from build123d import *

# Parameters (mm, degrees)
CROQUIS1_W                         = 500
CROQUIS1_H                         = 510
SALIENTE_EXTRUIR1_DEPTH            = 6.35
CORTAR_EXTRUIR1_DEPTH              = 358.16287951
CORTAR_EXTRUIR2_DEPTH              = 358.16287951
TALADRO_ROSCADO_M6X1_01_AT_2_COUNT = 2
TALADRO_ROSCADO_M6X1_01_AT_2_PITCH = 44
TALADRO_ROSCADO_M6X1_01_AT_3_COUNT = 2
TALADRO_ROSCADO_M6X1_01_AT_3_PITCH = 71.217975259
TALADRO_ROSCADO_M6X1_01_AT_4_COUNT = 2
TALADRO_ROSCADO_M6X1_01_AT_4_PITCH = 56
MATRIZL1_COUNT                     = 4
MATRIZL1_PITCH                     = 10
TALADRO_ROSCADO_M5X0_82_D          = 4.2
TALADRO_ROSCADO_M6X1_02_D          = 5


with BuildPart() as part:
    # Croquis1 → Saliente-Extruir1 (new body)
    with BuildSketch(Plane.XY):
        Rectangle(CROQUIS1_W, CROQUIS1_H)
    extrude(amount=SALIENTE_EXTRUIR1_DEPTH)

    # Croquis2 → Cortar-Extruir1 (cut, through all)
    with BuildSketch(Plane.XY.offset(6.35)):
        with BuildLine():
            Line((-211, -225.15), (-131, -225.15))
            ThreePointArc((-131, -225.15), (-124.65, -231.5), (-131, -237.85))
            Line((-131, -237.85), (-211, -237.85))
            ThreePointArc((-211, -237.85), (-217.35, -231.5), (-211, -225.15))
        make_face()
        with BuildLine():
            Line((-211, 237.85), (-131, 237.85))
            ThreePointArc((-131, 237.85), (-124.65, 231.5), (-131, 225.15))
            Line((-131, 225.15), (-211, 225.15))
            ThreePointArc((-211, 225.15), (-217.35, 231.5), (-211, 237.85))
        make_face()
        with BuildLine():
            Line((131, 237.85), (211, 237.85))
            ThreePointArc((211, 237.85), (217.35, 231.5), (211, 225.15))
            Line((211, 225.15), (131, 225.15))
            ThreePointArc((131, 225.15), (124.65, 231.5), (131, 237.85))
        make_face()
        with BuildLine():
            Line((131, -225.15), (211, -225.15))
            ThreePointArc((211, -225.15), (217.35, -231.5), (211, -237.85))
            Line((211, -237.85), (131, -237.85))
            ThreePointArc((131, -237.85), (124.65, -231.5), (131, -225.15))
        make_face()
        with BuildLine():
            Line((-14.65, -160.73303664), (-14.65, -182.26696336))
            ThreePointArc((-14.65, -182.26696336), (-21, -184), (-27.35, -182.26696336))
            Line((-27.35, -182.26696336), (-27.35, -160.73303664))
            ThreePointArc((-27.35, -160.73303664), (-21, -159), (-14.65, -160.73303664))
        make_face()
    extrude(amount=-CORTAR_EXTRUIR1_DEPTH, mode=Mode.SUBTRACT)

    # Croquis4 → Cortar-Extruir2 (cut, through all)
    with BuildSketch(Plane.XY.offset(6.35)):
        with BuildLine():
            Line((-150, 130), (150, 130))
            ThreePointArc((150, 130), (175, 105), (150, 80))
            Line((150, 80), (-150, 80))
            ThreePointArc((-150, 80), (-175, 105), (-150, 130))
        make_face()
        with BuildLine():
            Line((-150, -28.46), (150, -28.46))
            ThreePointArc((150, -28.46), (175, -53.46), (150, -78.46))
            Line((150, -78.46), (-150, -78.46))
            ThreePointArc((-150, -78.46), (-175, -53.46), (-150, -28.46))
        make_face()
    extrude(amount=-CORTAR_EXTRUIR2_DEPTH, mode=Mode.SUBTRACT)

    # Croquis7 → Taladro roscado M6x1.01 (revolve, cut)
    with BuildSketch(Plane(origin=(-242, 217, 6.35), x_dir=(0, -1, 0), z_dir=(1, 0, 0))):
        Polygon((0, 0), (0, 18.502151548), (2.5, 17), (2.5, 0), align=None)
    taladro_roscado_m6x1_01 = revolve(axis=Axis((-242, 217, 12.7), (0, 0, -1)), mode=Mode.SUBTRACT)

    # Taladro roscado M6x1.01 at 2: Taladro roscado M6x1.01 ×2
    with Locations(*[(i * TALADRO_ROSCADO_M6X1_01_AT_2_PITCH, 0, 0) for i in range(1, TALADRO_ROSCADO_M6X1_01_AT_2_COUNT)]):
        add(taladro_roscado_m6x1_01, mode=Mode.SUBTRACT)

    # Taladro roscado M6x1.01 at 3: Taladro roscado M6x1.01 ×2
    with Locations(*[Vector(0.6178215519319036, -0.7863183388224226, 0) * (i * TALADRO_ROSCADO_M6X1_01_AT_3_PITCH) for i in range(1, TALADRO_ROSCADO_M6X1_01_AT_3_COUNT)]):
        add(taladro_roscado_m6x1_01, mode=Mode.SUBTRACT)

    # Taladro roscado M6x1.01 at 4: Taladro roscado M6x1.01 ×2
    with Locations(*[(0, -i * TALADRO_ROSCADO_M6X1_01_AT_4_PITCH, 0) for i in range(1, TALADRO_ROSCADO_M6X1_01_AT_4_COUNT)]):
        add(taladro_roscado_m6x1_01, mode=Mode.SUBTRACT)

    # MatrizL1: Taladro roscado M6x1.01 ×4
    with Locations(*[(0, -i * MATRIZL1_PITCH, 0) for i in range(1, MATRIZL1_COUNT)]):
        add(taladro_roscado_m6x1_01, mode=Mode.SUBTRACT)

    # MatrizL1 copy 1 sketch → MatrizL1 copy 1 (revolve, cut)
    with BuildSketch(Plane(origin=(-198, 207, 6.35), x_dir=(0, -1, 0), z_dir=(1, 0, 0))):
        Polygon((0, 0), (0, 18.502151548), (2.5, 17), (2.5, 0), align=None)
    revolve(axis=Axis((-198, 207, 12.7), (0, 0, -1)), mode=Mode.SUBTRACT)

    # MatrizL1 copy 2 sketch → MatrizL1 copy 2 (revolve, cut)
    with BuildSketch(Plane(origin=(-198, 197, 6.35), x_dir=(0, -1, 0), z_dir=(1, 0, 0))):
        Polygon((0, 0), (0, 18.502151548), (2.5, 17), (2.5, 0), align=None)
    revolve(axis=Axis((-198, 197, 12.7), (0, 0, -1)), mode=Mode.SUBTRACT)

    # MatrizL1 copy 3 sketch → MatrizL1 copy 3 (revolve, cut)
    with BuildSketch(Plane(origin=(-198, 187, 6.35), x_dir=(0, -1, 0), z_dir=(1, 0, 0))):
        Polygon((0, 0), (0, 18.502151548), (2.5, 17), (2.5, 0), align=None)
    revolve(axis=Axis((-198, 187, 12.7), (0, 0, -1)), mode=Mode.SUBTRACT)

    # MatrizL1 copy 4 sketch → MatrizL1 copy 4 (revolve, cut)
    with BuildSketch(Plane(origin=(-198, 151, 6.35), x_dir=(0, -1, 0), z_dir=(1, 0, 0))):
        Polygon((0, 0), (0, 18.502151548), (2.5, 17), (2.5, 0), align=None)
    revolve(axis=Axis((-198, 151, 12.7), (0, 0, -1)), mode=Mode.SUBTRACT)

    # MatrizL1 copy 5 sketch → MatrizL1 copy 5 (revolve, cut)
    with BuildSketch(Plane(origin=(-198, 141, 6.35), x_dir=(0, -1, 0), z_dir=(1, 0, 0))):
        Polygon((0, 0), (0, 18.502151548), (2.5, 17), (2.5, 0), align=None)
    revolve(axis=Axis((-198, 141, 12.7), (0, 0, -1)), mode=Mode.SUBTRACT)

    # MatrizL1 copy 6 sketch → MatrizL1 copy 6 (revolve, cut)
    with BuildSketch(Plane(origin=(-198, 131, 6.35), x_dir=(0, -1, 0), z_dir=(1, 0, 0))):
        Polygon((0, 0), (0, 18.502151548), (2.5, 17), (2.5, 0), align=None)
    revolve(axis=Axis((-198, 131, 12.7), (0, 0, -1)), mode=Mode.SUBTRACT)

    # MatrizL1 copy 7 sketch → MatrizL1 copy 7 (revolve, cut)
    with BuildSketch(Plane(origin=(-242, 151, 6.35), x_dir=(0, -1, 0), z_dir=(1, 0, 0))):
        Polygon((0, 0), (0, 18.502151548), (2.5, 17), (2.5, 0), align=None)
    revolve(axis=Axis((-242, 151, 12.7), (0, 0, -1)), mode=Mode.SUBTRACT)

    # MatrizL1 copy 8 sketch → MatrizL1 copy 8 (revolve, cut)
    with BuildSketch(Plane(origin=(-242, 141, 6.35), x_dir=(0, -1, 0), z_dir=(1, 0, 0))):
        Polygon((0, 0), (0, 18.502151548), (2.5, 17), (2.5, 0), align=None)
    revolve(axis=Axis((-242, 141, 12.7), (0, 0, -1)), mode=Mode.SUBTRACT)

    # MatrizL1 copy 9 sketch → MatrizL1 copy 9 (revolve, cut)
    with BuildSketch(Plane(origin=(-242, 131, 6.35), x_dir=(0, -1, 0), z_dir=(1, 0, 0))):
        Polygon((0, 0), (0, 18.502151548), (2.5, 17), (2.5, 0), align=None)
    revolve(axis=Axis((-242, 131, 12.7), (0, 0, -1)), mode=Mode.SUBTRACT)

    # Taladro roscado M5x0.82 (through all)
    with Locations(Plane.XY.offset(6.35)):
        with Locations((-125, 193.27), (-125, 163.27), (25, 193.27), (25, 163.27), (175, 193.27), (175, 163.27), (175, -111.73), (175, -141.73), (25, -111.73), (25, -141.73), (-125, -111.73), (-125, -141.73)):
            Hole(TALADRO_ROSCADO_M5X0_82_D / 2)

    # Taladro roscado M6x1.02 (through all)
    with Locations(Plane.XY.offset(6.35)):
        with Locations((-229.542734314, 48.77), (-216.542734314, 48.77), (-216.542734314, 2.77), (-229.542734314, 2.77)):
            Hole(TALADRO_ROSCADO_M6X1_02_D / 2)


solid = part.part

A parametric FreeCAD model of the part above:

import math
import FreeCAD as App
import Part
import Sketcher
Q = App.Units.Quantity


def add_polygon(sketch, points):
    """Adds a closed chain of lines whose ends are joined by coincident constraints."""
    first, n = sketch.GeometryCount, len(points)
    for a, b in zip(points, points[1:] + points[:1]):
        sketch.addGeometry(Part.LineSegment(App.Vector(*a, 0), App.Vector(*b, 0)), False)
    for i in range(n):
        sketch.addConstraint(Sketcher.Constraint("Coincident", first + i, 2, first + (i + 1) % n, 1))

doc = App.newDocument("Part")
body = doc.addObject("PartDesign::Body", "Body")

# Sketch on XY plane
sketch1 = doc.addObject("Sketcher::SketchObject", "Sketch")
body.addObject(sketch1)
sketch1.AttachmentSupport = (doc.XY_Plane, [""])
sketch1.MapMode = "FlatFace"
add_polygon(sketch1, [(-250, 255), (-250, -255), (250, -255), (250, 255)])  # lines 0-3
sketch1.addConstraint([
    Sketcher.Constraint("Vertical", 0),
    Sketcher.Constraint("Horizontal", 1),
    Sketcher.Constraint("Vertical", 2),
    Sketcher.Constraint("Horizontal", 3),
    Sketcher.Constraint("Symmetric", 0, 2, 2, 2, -1, 1),
    Sketcher.Constraint("DistanceX", 1, 1, 1, 2, Q("500 mm")),
    Sketcher.Constraint("DistanceY", 0, 2, 0, 1, Q("510 mm")),
])
pad1 = doc.addObject("PartDesign::Pad", "Pad")
body.addObject(pad1)
pad1.Profile = sketch1
pad1.Length = 6.35

# Sketch on XY plane
sketch2 = doc.addObject("Sketcher::SketchObject", "Sketch001")
body.addObject(sketch2)
sketch2.AttachmentSupport = (doc.XY_Plane, [""])
sketch2.MapMode = "FlatFace"
sketch2.AttachmentOffset = App.Placement(App.Vector(0, 0, 6.35), App.Rotation())
sketch2.addGeometry([
    Part.LineSegment(App.Vector(-131, -225.15, 0), App.Vector(-211, -225.15, 0)),  # 0
    Part.ArcOfCircle(Part.Circle(App.Vector(-211, -231.5, 0), App.Vector(0, 0, 1), 6.35), math.radians(90), math.radians(270)),  # 1
    Part.LineSegment(App.Vector(-211, -237.85, 0), App.Vector(-131, -237.85, 0)),  # 2
    Part.ArcOfCircle(Part.Circle(App.Vector(-131, -231.5, 0), App.Vector(0, 0, 1), 6.35), math.radians(-90), math.radians(90)),  # 3
    Part.LineSegment(App.Vector(-131, 237.85, 0), App.Vector(-211, 237.85, 0)),  # 4
    Part.ArcOfCircle(Part.Circle(App.Vector(-211, 231.5, 0), App.Vector(0, 0, 1), 6.35), math.radians(90), math.radians(270)),  # 5
    Part.LineSegment(App.Vector(-211, 225.15, 0), App.Vector(-131, 225.15, 0)),  # 6
    Part.ArcOfCircle(Part.Circle(App.Vector(-131, 231.5, 0), App.Vector(0, 0, 1), 6.35), math.radians(-90), math.radians(90)),  # 7
    Part.LineSegment(App.Vector(211, 237.85, 0), App.Vector(131, 237.85, 0)),  # 8
    Part.ArcOfCircle(Part.Circle(App.Vector(131, 231.5, 0), App.Vector(0, 0, 1), 6.35), math.radians(90), math.radians(270)),  # 9
    Part.LineSegment(App.Vector(131, 225.15, 0), App.Vector(211, 225.15, 0)),  # 10
    Part.ArcOfCircle(Part.Circle(App.Vector(211, 231.5, 0), App.Vector(0, 0, 1), 6.35), math.radians(-90), math.radians(90)),  # 11
    Part.LineSegment(App.Vector(211, -225.15, 0), App.Vector(131, -225.15, 0)),  # 12
    Part.ArcOfCircle(Part.Circle(App.Vector(131, -231.5, 0), App.Vector(0, 0, 1), 6.35), math.radians(90), math.radians(270)),  # 13
    Part.LineSegment(App.Vector(131, -237.85, 0), App.Vector(211, -237.85, 0)),  # 14
    Part.ArcOfCircle(Part.Circle(App.Vector(211, -231.5, 0), App.Vector(0, 0, 1), 6.35), math.radians(-90), math.radians(90)),  # 15
    Part.LineSegment(App.Vector(-14.65, -182.266963, 0), App.Vector(-14.65, -160.733037, 0)),  # 16
    Part.ArcOfCircle(Part.Circle(App.Vector(-21, -171.5, 0), App.Vector(0, 0, 1), 12.5), math.radians(59.469298), math.radians(120.530702)),  # 17
    Part.LineSegment(App.Vector(-27.35, -160.733037, 0), App.Vector(-27.35, -182.266963, 0)),  # 18
    Part.ArcOfCircle(Part.Circle(App.Vector(-21, -171.5, 0), App.Vector(0, 0, 1), 12.5), math.radians(-120.530702), math.radians(-59.469298)),  # 19
], False)
sketch2.addConstraint([
    Sketcher.Constraint("Tangent", 0, 2, 1, 1),
    Sketcher.Constraint("Tangent", 1, 2, 2, 1),
    Sketcher.Constraint("Tangent", 2, 2, 3, 1),
    Sketcher.Constraint("Tangent", 3, 2, 0, 1),
    Sketcher.Constraint("Tangent", 4, 2, 5, 1),
    Sketcher.Constraint("Tangent", 5, 2, 6, 1),
    Sketcher.Constraint("Tangent", 6, 2, 7, 1),
    Sketcher.Constraint("Tangent", 7, 2, 4, 1),
    Sketcher.Constraint("Tangent", 8, 2, 9, 1),
    Sketcher.Constraint("Tangent", 9, 2, 10, 1),
    Sketcher.Constraint("Tangent", 10, 2, 11, 1),
    Sketcher.Constraint("Tangent", 11, 2, 8, 1),
    Sketcher.Constraint("Tangent", 12, 2, 13, 1),
    Sketcher.Constraint("Tangent", 13, 2, 14, 1),
    Sketcher.Constraint("Tangent", 14, 2, 15, 1),
    Sketcher.Constraint("Tangent", 15, 2, 12, 1),
    Sketcher.Constraint("Coincident", 16, 2, 17, 1),
    Sketcher.Constraint("Coincident", 17, 2, 18, 1),
    Sketcher.Constraint("Coincident", 18, 2, 19, 1),
    Sketcher.Constraint("Coincident", 19, 2, 16, 1),
    Sketcher.Constraint("Horizontal", 0),
    Sketcher.Constraint("Horizontal", 2),
    Sketcher.Constraint("Horizontal", 4),
    Sketcher.Constraint("Horizontal", 6),
    Sketcher.Constraint("Horizontal", 8),
    Sketcher.Constraint("Horizontal", 10),
    Sketcher.Constraint("Horizontal", 12),
    Sketcher.Constraint("Horizontal", 14),
    Sketcher.Constraint("Vertical", 16),
    Sketcher.Constraint("Vertical", 18),
    Sketcher.Constraint("Coincident", 19, 3, 17, 3),
    Sketcher.Constraint("Equal", 3, 5),
    Sketcher.Constraint("Equal", 7, 9),
    Sketcher.Constraint("Equal", 11, 13),
    Sketcher.Constraint("Equal", 17, 19),
    Sketcher.Constraint("Symmetric", 3, 3, 9, 3, -1, 1),
    Sketcher.Constraint("Symmetric", 7, 3, 13, 3, -1, 1),
    Sketcher.Constraint("Symmetric", 7, 3, 9, 3, -2),
    Sketcher.Constraint("Horizontal", 16, 2, 17, 2),
    Sketcher.Constraint("Vertical", 1, 3, 5, 3),
    Sketcher.Constraint("Vertical", 11, 3, 15, 3),
    Sketcher.Constraint("Equal", 6, 8),
    Sketcher.Constraint("Radius", 17, Q("12.5 mm")),
    Sketcher.Constraint("DistanceX", 0, 2, 0, 1, Q("80 mm")),
    Sketcher.Constraint("Radius", 1, Q("6.35 mm")),
    Sketcher.Constraint("DistanceX", 1, 3, -1, 1, Q("211 mm")),
    Sketcher.Constraint("DistanceX", 17, 3, -1, 1, Q("21 mm")),
    Sketcher.Constraint("DistanceY", 1, 3, 5, 3, Q("463 mm")),
    Sketcher.Constraint("DistanceY", 3, 3, 17, 3, Q("60 mm")),
    Sketcher.Constraint("DistanceX", 17, 2, 16, 2, Q("12.7 mm")),
])
pocket1 = doc.addObject("PartDesign::Pocket", "Pocket")
body.addObject(pocket1)
pocket1.Profile = sketch2
pocket1.Type = "ThroughAll"

# Sketch on XY plane
sketch3 = doc.addObject("Sketcher::SketchObject", "Sketch002")
body.addObject(sketch3)
sketch3.AttachmentSupport = (doc.XY_Plane, [""])
sketch3.MapMode = "FlatFace"
sketch3.AttachmentOffset = App.Placement(App.Vector(0, 0, 6.35), App.Rotation())
sketch3.addGeometry([
    Part.LineSegment(App.Vector(150, 130, 0), App.Vector(-150, 130, 0)),  # 0
    Part.ArcOfCircle(Part.Circle(App.Vector(-150, 105, 0), App.Vector(0, 0, 1), 25), math.radians(90), math.radians(270)),  # 1
    Part.LineSegment(App.Vector(-150, 80, 0), App.Vector(150, 80, 0)),  # 2
    Part.ArcOfCircle(Part.Circle(App.Vector(150, 105, 0), App.Vector(0, 0, 1), 25), math.radians(-90), math.radians(90)),  # 3
    Part.LineSegment(App.Vector(150, -28.46, 0), App.Vector(-150, -28.46, 0)),  # 4
    Part.ArcOfCircle(Part.Circle(App.Vector(-150, -53.46, 0), App.Vector(0, 0, 1), 25), math.radians(90), math.radians(270)),  # 5
    Part.LineSegment(App.Vector(-150, -78.46, 0), App.Vector(150, -78.46, 0)),  # 6
    Part.ArcOfCircle(Part.Circle(App.Vector(150, -53.46, 0), App.Vector(0, 0, 1), 25), math.radians(-90), math.radians(90)),  # 7
], False)
sketch3.addConstraint([
    Sketcher.Constraint("Tangent", 0, 2, 1, 1),
    Sketcher.Constraint("Tangent", 1, 2, 2, 1),
    Sketcher.Constraint("Tangent", 2, 2, 3, 1),
    Sketcher.Constraint("Tangent", 3, 2, 0, 1),
    Sketcher.Constraint("Tangent", 4, 2, 5, 1),
    Sketcher.Constraint("Tangent", 5, 2, 6, 1),
    Sketcher.Constraint("Tangent", 6, 2, 7, 1),
    Sketcher.Constraint("Tangent", 7, 2, 4, 1),
    Sketcher.Constraint("Horizontal", 0),
    Sketcher.Constraint("Horizontal", 2),
    Sketcher.Constraint("Horizontal", 4),
    Sketcher.Constraint("Horizontal", 6),
    Sketcher.Constraint("Equal", 3, 5),
    Sketcher.Constraint("Vertical", 1, 3, 5, 3),
    Sketcher.Constraint("Vertical", 3, 3, 7, 3),
    Sketcher.Constraint("Radius", 1, Q("25 mm")),
    Sketcher.Constraint("DistanceX", 0, 2, 0, 1, Q("300 mm")),
    Sketcher.Constraint("DistanceX", 1, 3, -1, 1, Q("150 mm")),
    Sketcher.Constraint("DistanceY", -1, 1, 1, 3, Q("105 mm")),
    Sketcher.Constraint("DistanceY", 5, 3, -1, 1, Q("53.46 mm")),
])
pocket2 = doc.addObject("PartDesign::Pocket", "Pocket001")
body.addObject(pocket2)
pocket2.Profile = sketch3
pocket2.Type = "ThroughAll"

# Sketch on YZ plane
sketch4 = doc.addObject("Sketcher::SketchObject", "Sketch003")
body.addObject(sketch4)
sketch4.AttachmentSupport = (doc.YZ_Plane, [""])
sketch4.MapMode = "FlatFace"
sketch4.AttachmentOffset = App.Placement(App.Vector(0, 0, -242), App.Rotation())
add_polygon(sketch4, [(217, -12.152152), (217, 6.35), (214.5, 6.35), (214.5, -10.65)])  # lines 0-3
sketch4.addGeometry(Part.LineSegment(App.Vector(217, 6.35, 0), App.Vector(217, -12.152152, 0)), True)  # axis
sketch4.addConstraint([
    Sketcher.Constraint("Vertical", 0),
    Sketcher.Constraint("Horizontal", 1),
    Sketcher.Constraint("Vertical", 2),
    Sketcher.Constraint("Vertical", 4),
    Sketcher.Constraint("Coincident", 4, 1, 0, 2),
    Sketcher.Constraint("Equal", 0, 4),
    Sketcher.Constraint("DistanceY", 2, 2, 2, 1, Q("17 mm")),
    Sketcher.Constraint("Angle", 3, Q("-31 deg")),
    Sketcher.Constraint("DistanceX", 1, 2, 1, 1, Q("2.5 mm")),
    Sketcher.Constraint("DistanceX", -1, 1, 0, 2, Q("217 mm")),
    Sketcher.Constraint("DistanceY", -1, 1, 0, 2, Q("6.35 mm")),
])
groove = doc.addObject("PartDesign::Groove", "Groove")
body.addObject(groove)
groove.Profile = sketch4
groove.ReferenceAxis = (sketch4, ["Axis0"])
groove.Angle = 360
doc.recompute()

linearpattern = doc.addObject("PartDesign::LinearPattern", "LinearPattern")
body.addObject(linearpattern)
linearpattern.Originals = [groove]
linearpattern.Direction = (doc.X_Axis, [""])
linearpattern.Mode = "offset"
linearpattern.Offset = 44
linearpattern.Occurrences = 2
body.Tip = linearpattern
doc.recompute()

datumline = doc.addObject("PartDesign::Line", "DatumLine")
body.addObject(datumline)
datumline.Placement = App.Placement(App.Vector(0, 0, 0), App.Rotation(App.Vector(0, 0, 1), App.Vector(0.617821552, -0.786318339, 0)))
linearpattern2 = doc.addObject("PartDesign::LinearPattern", "LinearPattern001")
body.addObject(linearpattern2)
linearpattern2.Originals = [groove]
linearpattern2.Direction = (datumline, [""])
linearpattern2.Mode = "offset"
linearpattern2.Offset = 71.217975
linearpattern2.Occurrences = 2
body.Tip = linearpattern2
doc.recompute()

linearpattern3 = doc.addObject("PartDesign::LinearPattern", "LinearPattern002")
body.addObject(linearpattern3)
linearpattern3.Originals = [groove]
linearpattern3.Direction = (doc.Y_Axis, [""])
linearpattern3.Mode = "offset"
linearpattern3.Offset = 56
linearpattern3.Occurrences = 2
linearpattern3.Reversed = True
body.Tip = linearpattern3
doc.recompute()

linearpattern4 = doc.addObject("PartDesign::LinearPattern", "LinearPattern003")
body.addObject(linearpattern4)
linearpattern4.Originals = [groove]
linearpattern4.Direction = (doc.Y_Axis, [""])
linearpattern4.Mode = "offset"
linearpattern4.Offset = 10
linearpattern4.Occurrences = 4
linearpattern4.Reversed = True
body.Tip = linearpattern4

# Sketch on YZ plane
sketch5 = doc.addObject("Sketcher::SketchObject", "Sketch004")
body.addObject(sketch5)
sketch5.AttachmentSupport = (doc.YZ_Plane, [""])
sketch5.MapMode = "FlatFace"
sketch5.AttachmentOffset = App.Placement(App.Vector(0, 0, -198), App.Rotation())
add_polygon(sketch5, [(207, -12.152152), (207, 6.35), (204.5, 6.35), (204.5, -10.65)])  # lines 0-3
sketch5.addGeometry(Part.LineSegment(App.Vector(207, 6.35, 0), App.Vector(207, -12.152152, 0)), True)  # axis
sketch5.addConstraint([
    Sketcher.Constraint("Vertical", 0),
    Sketcher.Constraint("Horizontal", 1),
    Sketcher.Constraint("Vertical", 2),
    Sketcher.Constraint("Vertical", 4),
    Sketcher.Constraint("Coincident", 4, 1, 0, 2),
    Sketcher.Constraint("Equal", 0, 4),
    Sketcher.Constraint("DistanceY", 2, 2, 2, 1, Q("17 mm")),
    Sketcher.Constraint("Angle", 3, Q("-31 deg")),
    Sketcher.Constraint("DistanceX", 1, 2, 1, 1, Q("2.5 mm")),
    Sketcher.Constraint("DistanceX", -1, 1, 0, 2, Q("207 mm")),
    Sketcher.Constraint("DistanceY", -1, 1, 0, 2, Q("6.35 mm")),
])
groove2 = doc.addObject("PartDesign::Groove", "Groove001")
body.addObject(groove2)
groove2.Profile = sketch5
groove2.ReferenceAxis = (sketch5, ["Axis0"])
groove2.Angle = 360

# Sketch on YZ plane
sketch6 = doc.addObject("Sketcher::SketchObject", "Sketch005")
body.addObject(sketch6)
sketch6.AttachmentSupport = (doc.YZ_Plane, [""])
sketch6.MapMode = "FlatFace"
sketch6.AttachmentOffset = App.Placement(App.Vector(0, 0, -198), App.Rotation())
add_polygon(sketch6, [(197, -12.152152), (197, 6.35), (194.5, 6.35), (194.5, -10.65)])  # lines 0-3
sketch6.addGeometry(Part.LineSegment(App.Vector(197, 6.35, 0), App.Vector(197, -12.152152, 0)), True)  # axis
sketch6.addConstraint([
    Sketcher.Constraint("Vertical", 0),
    Sketcher.Constraint("Horizontal", 1),
    Sketcher.Constraint("Vertical", 2),
    Sketcher.Constraint("Vertical", 4),
    Sketcher.Constraint("Coincident", 4, 1, 0, 2),
    Sketcher.Constraint("Equal", 0, 4),
    Sketcher.Constraint("DistanceY", 2, 2, 2, 1, Q("17 mm")),
    Sketcher.Constraint("Angle", 3, Q("-31 deg")),
    Sketcher.Constraint("DistanceX", 1, 2, 1, 1, Q("2.5 mm")),
    Sketcher.Constraint("DistanceX", -1, 1, 0, 2, Q("197 mm")),
    Sketcher.Constraint("DistanceY", -1, 1, 0, 2, Q("6.35 mm")),
])
groove3 = doc.addObject("PartDesign::Groove", "Groove002")
body.addObject(groove3)
groove3.Profile = sketch6
groove3.ReferenceAxis = (sketch6, ["Axis0"])
groove3.Angle = 360

# Sketch on YZ plane
sketch7 = doc.addObject("Sketcher::SketchObject", "Sketch006")
body.addObject(sketch7)
sketch7.AttachmentSupport = (doc.YZ_Plane, [""])
sketch7.MapMode = "FlatFace"
sketch7.AttachmentOffset = App.Placement(App.Vector(0, 0, -198), App.Rotation())
add_polygon(sketch7, [(187, -12.152152), (187, 6.35), (184.5, 6.35), (184.5, -10.65)])  # lines 0-3
sketch7.addGeometry(Part.LineSegment(App.Vector(187, 6.35, 0), App.Vector(187, -12.152152, 0)), True)  # axis
sketch7.addConstraint([
    Sketcher.Constraint("Vertical", 0),
    Sketcher.Constraint("Horizontal", 1),
    Sketcher.Constraint("Vertical", 2),
    Sketcher.Constraint("Vertical", 4),
    Sketcher.Constraint("Coincident", 4, 1, 0, 2),
    Sketcher.Constraint("Equal", 0, 4),
    Sketcher.Constraint("DistanceY", 2, 2, 2, 1, Q("17 mm")),
    Sketcher.Constraint("Angle", 3, Q("-31 deg")),
    Sketcher.Constraint("DistanceX", 1, 2, 1, 1, Q("2.5 mm")),
    Sketcher.Constraint("DistanceX", -1, 1, 0, 2, Q("187 mm")),
    Sketcher.Constraint("DistanceY", -1, 1, 0, 2, Q("6.35 mm")),
])
groove4 = doc.addObject("PartDesign::Groove", "Groove003")
body.addObject(groove4)
groove4.Profile = sketch7
groove4.ReferenceAxis = (sketch7, ["Axis0"])
groove4.Angle = 360

# Sketch on YZ plane
sketch8 = doc.addObject("Sketcher::SketchObject", "Sketch007")
body.addObject(sketch8)
sketch8.AttachmentSupport = (doc.YZ_Plane, [""])
sketch8.MapMode = "FlatFace"
sketch8.AttachmentOffset = App.Placement(App.Vector(0, 0, -198), App.Rotation())
add_polygon(sketch8, [(151, -12.152152), (151, 6.35), (148.5, 6.35), (148.5, -10.65)])  # lines 0-3
sketch8.addGeometry(Part.LineSegment(App.Vector(151, 6.35, 0), App.Vector(151, -12.152152, 0)), True)  # axis
sketch8.addConstraint([
    Sketcher.Constraint("Vertical", 0),
    Sketcher.Constraint("Horizontal", 1),
    Sketcher.Constraint("Vertical", 2),
    Sketcher.Constraint("Vertical", 4),
    Sketcher.Constraint("Coincident", 4, 1, 0, 2),
    Sketcher.Constraint("Equal", 0, 4),
    Sketcher.Constraint("DistanceY", 2, 2, 2, 1, Q("17 mm")),
    Sketcher.Constraint("Angle", 3, Q("-31 deg")),
    Sketcher.Constraint("DistanceX", 1, 2, 1, 1, Q("2.5 mm")),
    Sketcher.Constraint("DistanceX", -1, 1, 0, 2, Q("151 mm")),
    Sketcher.Constraint("DistanceY", -1, 1, 0, 2, Q("6.35 mm")),
])
groove5 = doc.addObject("PartDesign::Groove", "Groove004")
body.addObject(groove5)
groove5.Profile = sketch8
groove5.ReferenceAxis = (sketch8, ["Axis0"])
groove5.Angle = 360

# Sketch on YZ plane
sketch9 = doc.addObject("Sketcher::SketchObject", "Sketch008")
body.addObject(sketch9)
sketch9.AttachmentSupport = (doc.YZ_Plane, [""])
sketch9.MapMode = "FlatFace"
sketch9.AttachmentOffset = App.Placement(App.Vector(0, 0, -198), App.Rotation())
add_polygon(sketch9, [(141, -12.152152), (141, 6.35), (138.5, 6.35), (138.5, -10.65)])  # lines 0-3
sketch9.addGeometry(Part.LineSegment(App.Vector(141, 6.35, 0), App.Vector(141, -12.152152, 0)), True)  # axis
sketch9.addConstraint([
    Sketcher.Constraint("Vertical", 0),
    Sketcher.Constraint("Horizontal", 1),
    Sketcher.Constraint("Vertical", 2),
    Sketcher.Constraint("Vertical", 4),
    Sketcher.Constraint("Coincident", 4, 1, 0, 2),
    Sketcher.Constraint("Equal", 0, 4),
    Sketcher.Constraint("DistanceY", 2, 2, 2, 1, Q("17 mm")),
    Sketcher.Constraint("Angle", 3, Q("-31 deg")),
    Sketcher.Constraint("DistanceX", 1, 2, 1, 1, Q("2.5 mm")),
    Sketcher.Constraint("DistanceX", -1, 1, 0, 2, Q("141 mm")),
    Sketcher.Constraint("DistanceY", -1, 1, 0, 2, Q("6.35 mm")),
])
groove6 = doc.addObject("PartDesign::Groove", "Groove005")
body.addObject(groove6)
groove6.Profile = sketch9
groove6.ReferenceAxis = (sketch9, ["Axis0"])
groove6.Angle = 360

# Sketch on YZ plane
sketch10 = doc.addObject("Sketcher::SketchObject", "Sketch009")
body.addObject(sketch10)
sketch10.AttachmentSupport = (doc.YZ_Plane, [""])
sketch10.MapMode = "FlatFace"
sketch10.AttachmentOffset = App.Placement(App.Vector(0, 0, -198), App.Rotation())
add_polygon(sketch10, [(131, -12.152152), (131, 6.35), (128.5, 6.35), (128.5, -10.65)])  # lines 0-3
sketch10.addGeometry(Part.LineSegment(App.Vector(131, 6.35, 0), App.Vector(131, -12.152152, 0)), True)  # axis
sketch10.addConstraint([
    Sketcher.Constraint("Vertical", 0),
    Sketcher.Constraint("Horizontal", 1),
    Sketcher.Constraint("Vertical", 2),
    Sketcher.Constraint("Vertical", 4),
    Sketcher.Constraint("Coincident", 4, 1, 0, 2),
    Sketcher.Constraint("Equal", 0, 4),
    Sketcher.Constraint("DistanceY", 2, 2, 2, 1, Q("17 mm")),
    Sketcher.Constraint("Angle", 3, Q("-31 deg")),
    Sketcher.Constraint("DistanceX", 1, 2, 1, 1, Q("2.5 mm")),
    Sketcher.Constraint("DistanceX", -1, 1, 0, 2, Q("131 mm")),
    Sketcher.Constraint("DistanceY", -1, 1, 0, 2, Q("6.35 mm")),
])
groove7 = doc.addObject("PartDesign::Groove", "Groove006")
body.addObject(groove7)
groove7.Profile = sketch10
groove7.ReferenceAxis = (sketch10, ["Axis0"])
groove7.Angle = 360

# Sketch on YZ plane
sketch11 = doc.addObject("Sketcher::SketchObject", "Sketch010")
body.addObject(sketch11)
sketch11.AttachmentSupport = (doc.YZ_Plane, [""])
sketch11.MapMode = "FlatFace"
sketch11.AttachmentOffset = App.Placement(App.Vector(0, 0, -242), App.Rotation())
add_polygon(sketch11, [(151, -12.152152), (151, 6.35), (148.5, 6.35), (148.5, -10.65)])  # lines 0-3
sketch11.addGeometry(Part.LineSegment(App.Vector(151, 6.35, 0), App.Vector(151, -12.152152, 0)), True)  # axis
sketch11.addConstraint([
    Sketcher.Constraint("Vertical", 0),
    Sketcher.Constraint("Horizontal", 1),
    Sketcher.Constraint("Vertical", 2),
    Sketcher.Constraint("Vertical", 4),
    Sketcher.Constraint("Coincident", 4, 1, 0, 2),
    Sketcher.Constraint("Equal", 0, 4),
    Sketcher.Constraint("DistanceY", 2, 2, 2, 1, Q("17 mm")),
    Sketcher.Constraint("Angle", 3, Q("-31 deg")),
    Sketcher.Constraint("DistanceX", 1, 2, 1, 1, Q("2.5 mm")),
    Sketcher.Constraint("DistanceX", -1, 1, 0, 2, Q("151 mm")),
    Sketcher.Constraint("DistanceY", -1, 1, 0, 2, Q("6.35 mm")),
])
groove8 = doc.addObject("PartDesign::Groove", "Groove007")
body.addObject(groove8)
groove8.Profile = sketch11
groove8.ReferenceAxis = (sketch11, ["Axis0"])
groove8.Angle = 360

# Sketch on YZ plane
sketch12 = doc.addObject("Sketcher::SketchObject", "Sketch011")
body.addObject(sketch12)
sketch12.AttachmentSupport = (doc.YZ_Plane, [""])
sketch12.MapMode = "FlatFace"
sketch12.AttachmentOffset = App.Placement(App.Vector(0, 0, -242), App.Rotation())
add_polygon(sketch12, [(141, -12.152152), (141, 6.35), (138.5, 6.35), (138.5, -10.65)])  # lines 0-3
sketch12.addGeometry(Part.LineSegment(App.Vector(141, 6.35, 0), App.Vector(141, -12.152152, 0)), True)  # axis
sketch12.addConstraint([
    Sketcher.Constraint("Vertical", 0),
    Sketcher.Constraint("Horizontal", 1),
    Sketcher.Constraint("Vertical", 2),
    Sketcher.Constraint("Vertical", 4),
    Sketcher.Constraint("Coincident", 4, 1, 0, 2),
    Sketcher.Constraint("Equal", 0, 4),
    Sketcher.Constraint("DistanceY", 2, 2, 2, 1, Q("17 mm")),
    Sketcher.Constraint("Angle", 3, Q("-31 deg")),
    Sketcher.Constraint("DistanceX", 1, 2, 1, 1, Q("2.5 mm")),
    Sketcher.Constraint("DistanceX", -1, 1, 0, 2, Q("141 mm")),
    Sketcher.Constraint("DistanceY", -1, 1, 0, 2, Q("6.35 mm")),
])
groove9 = doc.addObject("PartDesign::Groove", "Groove008")
body.addObject(groove9)
groove9.Profile = sketch12
groove9.ReferenceAxis = (sketch12, ["Axis0"])
groove9.Angle = 360

# Sketch on YZ plane
sketch13 = doc.addObject("Sketcher::SketchObject", "Sketch012")
body.addObject(sketch13)
sketch13.AttachmentSupport = (doc.YZ_Plane, [""])
sketch13.MapMode = "FlatFace"
sketch13.AttachmentOffset = App.Placement(App.Vector(0, 0, -242), App.Rotation())
add_polygon(sketch13, [(131, -12.152152), (131, 6.35), (128.5, 6.35), (128.5, -10.65)])  # lines 0-3
sketch13.addGeometry(Part.LineSegment(App.Vector(131, 6.35, 0), App.Vector(131, -12.152152, 0)), True)  # axis
sketch13.addConstraint([
    Sketcher.Constraint("Vertical", 0),
    Sketcher.Constraint("Horizontal", 1),
    Sketcher.Constraint("Vertical", 2),
    Sketcher.Constraint("Vertical", 4),
    Sketcher.Constraint("Coincident", 4, 1, 0, 2),
    Sketcher.Constraint("Equal", 0, 4),
    Sketcher.Constraint("DistanceY", 2, 2, 2, 1, Q("17 mm")),
    Sketcher.Constraint("Angle", 3, Q("-31 deg")),
    Sketcher.Constraint("DistanceX", 1, 2, 1, 1, Q("2.5 mm")),
    Sketcher.Constraint("DistanceX", -1, 1, 0, 2, Q("131 mm")),
    Sketcher.Constraint("DistanceY", -1, 1, 0, 2, Q("6.35 mm")),
])
groove10 = doc.addObject("PartDesign::Groove", "Groove009")
body.addObject(groove10)
groove10.Profile = sketch13
groove10.ReferenceAxis = (sketch13, ["Axis0"])
groove10.Angle = 360

# Sketch on XY plane
sketch14 = doc.addObject("Sketcher::SketchObject", "Sketch013")
body.addObject(sketch14)
sketch14.AttachmentSupport = (doc.XY_Plane, [""])
sketch14.MapMode = "FlatFace"
sketch14.AttachmentOffset = App.Placement(App.Vector(0, 0, 6.35), App.Rotation())
sketch14.addGeometry([
    Part.Circle(App.Vector(-125, 193.27, 0), App.Vector(0, 0, 1), 2.1),  # 0
    Part.Circle(App.Vector(-125, 163.27, 0), App.Vector(0, 0, 1), 2.1),  # 1
    Part.Circle(App.Vector(25, 193.27, 0), App.Vector(0, 0, 1), 2.1),  # 2
    Part.Circle(App.Vector(25, 163.27, 0), App.Vector(0, 0, 1), 2.1),  # 3
    Part.Circle(App.Vector(175, 193.27, 0), App.Vector(0, 0, 1), 2.1),  # 4
    Part.Circle(App.Vector(175, 163.27, 0), App.Vector(0, 0, 1), 2.1),  # 5
    Part.Circle(App.Vector(175, -111.73, 0), App.Vector(0, 0, 1), 2.1),  # 6
    Part.Circle(App.Vector(175, -141.73, 0), App.Vector(0, 0, 1), 2.1),  # 7
    Part.Circle(App.Vector(25, -111.73, 0), App.Vector(0, 0, 1), 2.1),  # 8
    Part.Circle(App.Vector(25, -141.73, 0), App.Vector(0, 0, 1), 2.1),  # 9
    Part.Circle(App.Vector(-125, -111.73, 0), App.Vector(0, 0, 1), 2.1),  # 10
    Part.Circle(App.Vector(-125, -141.73, 0), App.Vector(0, 0, 1), 2.1),  # 11
], False)
sketch14.addConstraint([
    Sketcher.Constraint("Equal", 0, 1),
    Sketcher.Constraint("Equal", 1, 2),
    Sketcher.Constraint("Equal", 2, 3),
    Sketcher.Constraint("Equal", 3, 4),
    Sketcher.Constraint("Equal", 4, 5),
    Sketcher.Constraint("Equal", 5, 6),
    Sketcher.Constraint("Equal", 6, 7),
    Sketcher.Constraint("Equal", 7, 8),
    Sketcher.Constraint("Equal", 8, 9),
    Sketcher.Constraint("Equal", 9, 10),
    Sketcher.Constraint("Equal", 10, 11),
    Sketcher.Constraint("Horizontal", 0, 3, 2, 3),
    Sketcher.Constraint("Horizontal", 1, 3, 3, 3),
    Sketcher.Constraint("Horizontal", 2, 3, 4, 3),
    Sketcher.Constraint("Horizontal", 3, 3, 5, 3),
    Sketcher.Constraint("Horizontal", 6, 3, 8, 3),
    Sketcher.Constraint("Horizontal", 7, 3, 9, 3),
    Sketcher.Constraint("Horizontal", 8, 3, 10, 3),
    Sketcher.Constraint("Horizontal", 9, 3, 11, 3),
    Sketcher.Constraint("Vertical", 0, 3, 1, 3),
    Sketcher.Constraint("Vertical", 2, 3, 3, 3),
    Sketcher.Constraint("Vertical", 4, 3, 5, 3),
    Sketcher.Constraint("Vertical", 5, 3, 6, 3),
    Sketcher.Constraint("Vertical", 6, 3, 7, 3),
    Sketcher.Constraint("Vertical", 3, 3, 8, 3),
    Sketcher.Constraint("Vertical", 8, 3, 9, 3),
    Sketcher.Constraint("Vertical", 1, 3, 10, 3),
    Sketcher.Constraint("Vertical", 10, 3, 11, 3),
    Sketcher.Constraint("Diameter", 0, Q("4.2 mm")),
    Sketcher.Constraint("DistanceX", 0, 3, -1, 1, Q("125 mm")),
    Sketcher.Constraint("DistanceX", -1, 1, 2, 3, Q("25 mm")),
    Sketcher.Constraint("DistanceX", -1, 1, 4, 3, Q("175 mm")),
    Sketcher.Constraint("DistanceY", 1, 3, 0, 3, Q("30 mm")),
    Sketcher.Constraint("DistanceY", 6, 3, 5, 3, Q("275 mm")),
    Sketcher.Constraint("DistanceY", 7, 3, 6, 3, Q("30 mm")),
    Sketcher.Constraint("DistanceY", -1, 1, 0, 3, Q("193.27 mm")),
])
doc.recompute()
hole = doc.addObject("PartDesign::Hole", "Hole")
body.addObject(hole)
hole.Profile = sketch14
hole.ThreadType = "None"
hole.Diameter = 4.2
hole.DepthType = "ThroughAll"

# Sketch on XY plane
sketch15 = doc.addObject("Sketcher::SketchObject", "Sketch014")
body.addObject(sketch15)
sketch15.AttachmentSupport = (doc.XY_Plane, [""])
sketch15.MapMode = "FlatFace"
sketch15.AttachmentOffset = App.Placement(App.Vector(0, 0, 6.35), App.Rotation())
sketch15.addGeometry([
    Part.Circle(App.Vector(-229.542734, 48.77, 0), App.Vector(0, 0, 1), 2.5),
    Part.Circle(App.Vector(-216.542734, 48.77, 0), App.Vector(0, 0, 1), 2.5),
    Part.Circle(App.Vector(-216.542734, 2.77, 0), App.Vector(0, 0, 1), 2.5),
    Part.Circle(App.Vector(-229.542734, 2.77, 0), App.Vector(0, 0, 1), 2.5),
], False)
sketch15.addConstraint([
    Sketcher.Constraint("Equal", 0, 1),
    Sketcher.Constraint("Equal", 1, 2),
    Sketcher.Constraint("Equal", 2, 3),
    Sketcher.Constraint("Horizontal", 0, 3, 1, 3),
    Sketcher.Constraint("Horizontal", 2, 3, 3, 3),
    Sketcher.Constraint("Vertical", 1, 3, 2, 3),
    Sketcher.Constraint("Vertical", 0, 3, 3, 3),
    Sketcher.Constraint("Diameter", 0, Q("5 mm")),
    Sketcher.Constraint("DistanceX", 0, 3, 1, 3, Q("13 mm")),
    Sketcher.Constraint("DistanceY", 2, 3, 1, 3, Q("46 mm")),
    Sketcher.Constraint("DistanceY", -1, 1, 0, 3, Q("48.77 mm")),
    Sketcher.Constraint("DistanceX", 0, 3, -1, 1, Q("229.542734 mm")),
])
doc.recompute()
hole2 = doc.addObject("PartDesign::Hole", "Hole001")
body.addObject(hole2)
hole2.Profile = sketch15
hole2.ThreadType = "None"
hole2.Diameter = 5
hole2.DepthType = "ThroughAll"

doc.recompute()
